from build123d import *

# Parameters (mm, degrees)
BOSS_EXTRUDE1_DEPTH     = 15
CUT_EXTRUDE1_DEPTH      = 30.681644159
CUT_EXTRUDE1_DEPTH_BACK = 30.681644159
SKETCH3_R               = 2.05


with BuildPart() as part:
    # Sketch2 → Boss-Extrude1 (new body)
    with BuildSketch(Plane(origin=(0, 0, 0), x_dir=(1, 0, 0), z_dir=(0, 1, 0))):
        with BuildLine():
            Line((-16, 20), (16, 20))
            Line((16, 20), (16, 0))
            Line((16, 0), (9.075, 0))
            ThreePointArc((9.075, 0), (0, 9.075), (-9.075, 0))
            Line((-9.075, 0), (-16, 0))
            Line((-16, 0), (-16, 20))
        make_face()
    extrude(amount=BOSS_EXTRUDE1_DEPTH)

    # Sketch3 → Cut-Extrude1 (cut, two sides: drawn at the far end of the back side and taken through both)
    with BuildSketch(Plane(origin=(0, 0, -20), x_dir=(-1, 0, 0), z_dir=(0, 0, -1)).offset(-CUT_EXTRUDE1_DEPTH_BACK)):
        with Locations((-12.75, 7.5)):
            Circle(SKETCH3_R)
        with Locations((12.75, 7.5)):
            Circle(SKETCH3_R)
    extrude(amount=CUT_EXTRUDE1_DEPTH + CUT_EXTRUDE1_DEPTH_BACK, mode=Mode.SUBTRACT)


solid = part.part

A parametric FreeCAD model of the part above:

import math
import FreeCAD as App
import Part
import Sketcher
from FreeCAD import Vector
Q = App.Units.Quantity

doc = App.newDocument("Part")
body = doc.addObject("PartDesign::Body", "Body")

sketch1 = body.newObject("Sketcher::SketchObject", "Sketch")
sketch1.AttachmentSupport = (doc.getObject("XZ_Plane"), [""])
sketch1.MapMode = "FlatFace"
sketch1.addGeometry(Part.LineSegment(Vector(16, -20, 0), Vector(-16, -20, 0)), False)
sketch1.addGeometry(Part.LineSegment(Vector(-16, -20, 0), Vector(-16, 0, 0)), False)
sketch1.addGeometry(Part.LineSegment(Vector(-16, 0, 0), Vector(-9.075, 0, 0)), False)
sketch1.addGeometry(Part.ArcOfCircle(Part.Circle(Vector(0, 0, 0), Vector(0, 0, 1), 9.075), math.radians(180), math.radians(360)), False)
sketch1.addGeometry(Part.LineSegment(Vector(9.075, 0, 0), Vector(16, 0, 0)), False)
sketch1.addGeometry(Part.LineSegment(Vector(16, 0, 0), Vector(16, -20, 0)), False)
sketch1.addConstraint(Sketcher.Constraint("Coincident", 0, 2, 1, 1))
sketch1.addConstraint(Sketcher.Constraint("Coincident", 1, 2, 2, 1))
sketch1.addConstraint(Sketcher.Constraint("Coincident", 2, 2, 3, 1))
sketch1.addConstraint(Sketcher.Constraint("Coincident", 3, 2, 4, 1))
sketch1.addConstraint(Sketcher.Constraint("Coincident", 4, 2, 5, 1))
sketch1.addConstraint(Sketcher.Constraint("Coincident", 5, 2, 0, 1))
sketch1.addConstraint(Sketcher.Constraint("Horizontal", 0))
sketch1.addConstraint(Sketcher.Constraint("Vertical", 1))
sketch1.addConstraint(Sketcher.Constraint("Horizontal", 2))
sketch1.addConstraint(Sketcher.Constraint("Horizontal", 4))
sketch1.addConstraint(Sketcher.Constraint("Vertical", 5))
sketch1.addConstraint(Sketcher.Constraint("Coincident", 3, 3, -1, 1))
sketch1.addConstraint(Sketcher.Constraint("Symmetric", 1, 2, 4, 2, -1, 1))
sketch1.addConstraint(Sketcher.Constraint("PointOnObject", 1, 2, -1))
sketch1.addConstraint(Sketcher.Constraint("DistanceX", 0, 2, 0, 1, Q("32 mm")))
sketch1.addConstraint(Sketcher.Constraint("DistanceY", 1, 1, 1, 2, Q("20 mm")))
sketch1.addConstraint(Sketcher.Constraint("Radius", 3, Q("9.075 mm")))
pad1 = body.newObject("PartDesign::Pad", "Pad")
pad1.Profile = sketch1
pad1.Length = 15
pad1.Reversed = True

sketch2 = body.newObject("Sketcher::SketchObject", "Sketch001")
sketch2.AttachmentSupport = (doc.getObject("XY_Plane"), [""])
sketch2.MapMode = "FlatFace"
sketch2.AttachmentOffset = App.Placement(Vector(0, 0, -20), App.Rotation())
sketch2.addGeometry(Part.Circle(Vector(12.75, 7.5, 0), Vector(0, 0, 1), 2.05), False)
sketch2.addGeometry(Part.Circle(Vector(-12.75, 7.5, 0), Vector(0, 0, 1), 2.05), False)
sketch2.addConstraint(Sketcher.Constraint("Equal", 0, 1))
sketch2.addConstraint(Sketcher.Constraint("Symmetric", 0, 3, 1, 3, -2))
sketch2.addConstraint(Sketcher.Constraint("Diameter", 0, Q("4.1 mm")))
sketch2.addConstraint(Sketcher.Constraint("DistanceY", -1, 1, 0, 3, Q("7.5 mm")))
sketch2.addConstraint(Sketcher.Constraint("DistanceX", 1, 3, 0, 3, Q("25.5 mm")))
pocket1 = body.newObject("PartDesign::Pocket", "Pocket")
pocket1.Profile = sketch2
pocket1.Type = "ThroughAll"
pocket1.Midplane = True

doc.recompute()
